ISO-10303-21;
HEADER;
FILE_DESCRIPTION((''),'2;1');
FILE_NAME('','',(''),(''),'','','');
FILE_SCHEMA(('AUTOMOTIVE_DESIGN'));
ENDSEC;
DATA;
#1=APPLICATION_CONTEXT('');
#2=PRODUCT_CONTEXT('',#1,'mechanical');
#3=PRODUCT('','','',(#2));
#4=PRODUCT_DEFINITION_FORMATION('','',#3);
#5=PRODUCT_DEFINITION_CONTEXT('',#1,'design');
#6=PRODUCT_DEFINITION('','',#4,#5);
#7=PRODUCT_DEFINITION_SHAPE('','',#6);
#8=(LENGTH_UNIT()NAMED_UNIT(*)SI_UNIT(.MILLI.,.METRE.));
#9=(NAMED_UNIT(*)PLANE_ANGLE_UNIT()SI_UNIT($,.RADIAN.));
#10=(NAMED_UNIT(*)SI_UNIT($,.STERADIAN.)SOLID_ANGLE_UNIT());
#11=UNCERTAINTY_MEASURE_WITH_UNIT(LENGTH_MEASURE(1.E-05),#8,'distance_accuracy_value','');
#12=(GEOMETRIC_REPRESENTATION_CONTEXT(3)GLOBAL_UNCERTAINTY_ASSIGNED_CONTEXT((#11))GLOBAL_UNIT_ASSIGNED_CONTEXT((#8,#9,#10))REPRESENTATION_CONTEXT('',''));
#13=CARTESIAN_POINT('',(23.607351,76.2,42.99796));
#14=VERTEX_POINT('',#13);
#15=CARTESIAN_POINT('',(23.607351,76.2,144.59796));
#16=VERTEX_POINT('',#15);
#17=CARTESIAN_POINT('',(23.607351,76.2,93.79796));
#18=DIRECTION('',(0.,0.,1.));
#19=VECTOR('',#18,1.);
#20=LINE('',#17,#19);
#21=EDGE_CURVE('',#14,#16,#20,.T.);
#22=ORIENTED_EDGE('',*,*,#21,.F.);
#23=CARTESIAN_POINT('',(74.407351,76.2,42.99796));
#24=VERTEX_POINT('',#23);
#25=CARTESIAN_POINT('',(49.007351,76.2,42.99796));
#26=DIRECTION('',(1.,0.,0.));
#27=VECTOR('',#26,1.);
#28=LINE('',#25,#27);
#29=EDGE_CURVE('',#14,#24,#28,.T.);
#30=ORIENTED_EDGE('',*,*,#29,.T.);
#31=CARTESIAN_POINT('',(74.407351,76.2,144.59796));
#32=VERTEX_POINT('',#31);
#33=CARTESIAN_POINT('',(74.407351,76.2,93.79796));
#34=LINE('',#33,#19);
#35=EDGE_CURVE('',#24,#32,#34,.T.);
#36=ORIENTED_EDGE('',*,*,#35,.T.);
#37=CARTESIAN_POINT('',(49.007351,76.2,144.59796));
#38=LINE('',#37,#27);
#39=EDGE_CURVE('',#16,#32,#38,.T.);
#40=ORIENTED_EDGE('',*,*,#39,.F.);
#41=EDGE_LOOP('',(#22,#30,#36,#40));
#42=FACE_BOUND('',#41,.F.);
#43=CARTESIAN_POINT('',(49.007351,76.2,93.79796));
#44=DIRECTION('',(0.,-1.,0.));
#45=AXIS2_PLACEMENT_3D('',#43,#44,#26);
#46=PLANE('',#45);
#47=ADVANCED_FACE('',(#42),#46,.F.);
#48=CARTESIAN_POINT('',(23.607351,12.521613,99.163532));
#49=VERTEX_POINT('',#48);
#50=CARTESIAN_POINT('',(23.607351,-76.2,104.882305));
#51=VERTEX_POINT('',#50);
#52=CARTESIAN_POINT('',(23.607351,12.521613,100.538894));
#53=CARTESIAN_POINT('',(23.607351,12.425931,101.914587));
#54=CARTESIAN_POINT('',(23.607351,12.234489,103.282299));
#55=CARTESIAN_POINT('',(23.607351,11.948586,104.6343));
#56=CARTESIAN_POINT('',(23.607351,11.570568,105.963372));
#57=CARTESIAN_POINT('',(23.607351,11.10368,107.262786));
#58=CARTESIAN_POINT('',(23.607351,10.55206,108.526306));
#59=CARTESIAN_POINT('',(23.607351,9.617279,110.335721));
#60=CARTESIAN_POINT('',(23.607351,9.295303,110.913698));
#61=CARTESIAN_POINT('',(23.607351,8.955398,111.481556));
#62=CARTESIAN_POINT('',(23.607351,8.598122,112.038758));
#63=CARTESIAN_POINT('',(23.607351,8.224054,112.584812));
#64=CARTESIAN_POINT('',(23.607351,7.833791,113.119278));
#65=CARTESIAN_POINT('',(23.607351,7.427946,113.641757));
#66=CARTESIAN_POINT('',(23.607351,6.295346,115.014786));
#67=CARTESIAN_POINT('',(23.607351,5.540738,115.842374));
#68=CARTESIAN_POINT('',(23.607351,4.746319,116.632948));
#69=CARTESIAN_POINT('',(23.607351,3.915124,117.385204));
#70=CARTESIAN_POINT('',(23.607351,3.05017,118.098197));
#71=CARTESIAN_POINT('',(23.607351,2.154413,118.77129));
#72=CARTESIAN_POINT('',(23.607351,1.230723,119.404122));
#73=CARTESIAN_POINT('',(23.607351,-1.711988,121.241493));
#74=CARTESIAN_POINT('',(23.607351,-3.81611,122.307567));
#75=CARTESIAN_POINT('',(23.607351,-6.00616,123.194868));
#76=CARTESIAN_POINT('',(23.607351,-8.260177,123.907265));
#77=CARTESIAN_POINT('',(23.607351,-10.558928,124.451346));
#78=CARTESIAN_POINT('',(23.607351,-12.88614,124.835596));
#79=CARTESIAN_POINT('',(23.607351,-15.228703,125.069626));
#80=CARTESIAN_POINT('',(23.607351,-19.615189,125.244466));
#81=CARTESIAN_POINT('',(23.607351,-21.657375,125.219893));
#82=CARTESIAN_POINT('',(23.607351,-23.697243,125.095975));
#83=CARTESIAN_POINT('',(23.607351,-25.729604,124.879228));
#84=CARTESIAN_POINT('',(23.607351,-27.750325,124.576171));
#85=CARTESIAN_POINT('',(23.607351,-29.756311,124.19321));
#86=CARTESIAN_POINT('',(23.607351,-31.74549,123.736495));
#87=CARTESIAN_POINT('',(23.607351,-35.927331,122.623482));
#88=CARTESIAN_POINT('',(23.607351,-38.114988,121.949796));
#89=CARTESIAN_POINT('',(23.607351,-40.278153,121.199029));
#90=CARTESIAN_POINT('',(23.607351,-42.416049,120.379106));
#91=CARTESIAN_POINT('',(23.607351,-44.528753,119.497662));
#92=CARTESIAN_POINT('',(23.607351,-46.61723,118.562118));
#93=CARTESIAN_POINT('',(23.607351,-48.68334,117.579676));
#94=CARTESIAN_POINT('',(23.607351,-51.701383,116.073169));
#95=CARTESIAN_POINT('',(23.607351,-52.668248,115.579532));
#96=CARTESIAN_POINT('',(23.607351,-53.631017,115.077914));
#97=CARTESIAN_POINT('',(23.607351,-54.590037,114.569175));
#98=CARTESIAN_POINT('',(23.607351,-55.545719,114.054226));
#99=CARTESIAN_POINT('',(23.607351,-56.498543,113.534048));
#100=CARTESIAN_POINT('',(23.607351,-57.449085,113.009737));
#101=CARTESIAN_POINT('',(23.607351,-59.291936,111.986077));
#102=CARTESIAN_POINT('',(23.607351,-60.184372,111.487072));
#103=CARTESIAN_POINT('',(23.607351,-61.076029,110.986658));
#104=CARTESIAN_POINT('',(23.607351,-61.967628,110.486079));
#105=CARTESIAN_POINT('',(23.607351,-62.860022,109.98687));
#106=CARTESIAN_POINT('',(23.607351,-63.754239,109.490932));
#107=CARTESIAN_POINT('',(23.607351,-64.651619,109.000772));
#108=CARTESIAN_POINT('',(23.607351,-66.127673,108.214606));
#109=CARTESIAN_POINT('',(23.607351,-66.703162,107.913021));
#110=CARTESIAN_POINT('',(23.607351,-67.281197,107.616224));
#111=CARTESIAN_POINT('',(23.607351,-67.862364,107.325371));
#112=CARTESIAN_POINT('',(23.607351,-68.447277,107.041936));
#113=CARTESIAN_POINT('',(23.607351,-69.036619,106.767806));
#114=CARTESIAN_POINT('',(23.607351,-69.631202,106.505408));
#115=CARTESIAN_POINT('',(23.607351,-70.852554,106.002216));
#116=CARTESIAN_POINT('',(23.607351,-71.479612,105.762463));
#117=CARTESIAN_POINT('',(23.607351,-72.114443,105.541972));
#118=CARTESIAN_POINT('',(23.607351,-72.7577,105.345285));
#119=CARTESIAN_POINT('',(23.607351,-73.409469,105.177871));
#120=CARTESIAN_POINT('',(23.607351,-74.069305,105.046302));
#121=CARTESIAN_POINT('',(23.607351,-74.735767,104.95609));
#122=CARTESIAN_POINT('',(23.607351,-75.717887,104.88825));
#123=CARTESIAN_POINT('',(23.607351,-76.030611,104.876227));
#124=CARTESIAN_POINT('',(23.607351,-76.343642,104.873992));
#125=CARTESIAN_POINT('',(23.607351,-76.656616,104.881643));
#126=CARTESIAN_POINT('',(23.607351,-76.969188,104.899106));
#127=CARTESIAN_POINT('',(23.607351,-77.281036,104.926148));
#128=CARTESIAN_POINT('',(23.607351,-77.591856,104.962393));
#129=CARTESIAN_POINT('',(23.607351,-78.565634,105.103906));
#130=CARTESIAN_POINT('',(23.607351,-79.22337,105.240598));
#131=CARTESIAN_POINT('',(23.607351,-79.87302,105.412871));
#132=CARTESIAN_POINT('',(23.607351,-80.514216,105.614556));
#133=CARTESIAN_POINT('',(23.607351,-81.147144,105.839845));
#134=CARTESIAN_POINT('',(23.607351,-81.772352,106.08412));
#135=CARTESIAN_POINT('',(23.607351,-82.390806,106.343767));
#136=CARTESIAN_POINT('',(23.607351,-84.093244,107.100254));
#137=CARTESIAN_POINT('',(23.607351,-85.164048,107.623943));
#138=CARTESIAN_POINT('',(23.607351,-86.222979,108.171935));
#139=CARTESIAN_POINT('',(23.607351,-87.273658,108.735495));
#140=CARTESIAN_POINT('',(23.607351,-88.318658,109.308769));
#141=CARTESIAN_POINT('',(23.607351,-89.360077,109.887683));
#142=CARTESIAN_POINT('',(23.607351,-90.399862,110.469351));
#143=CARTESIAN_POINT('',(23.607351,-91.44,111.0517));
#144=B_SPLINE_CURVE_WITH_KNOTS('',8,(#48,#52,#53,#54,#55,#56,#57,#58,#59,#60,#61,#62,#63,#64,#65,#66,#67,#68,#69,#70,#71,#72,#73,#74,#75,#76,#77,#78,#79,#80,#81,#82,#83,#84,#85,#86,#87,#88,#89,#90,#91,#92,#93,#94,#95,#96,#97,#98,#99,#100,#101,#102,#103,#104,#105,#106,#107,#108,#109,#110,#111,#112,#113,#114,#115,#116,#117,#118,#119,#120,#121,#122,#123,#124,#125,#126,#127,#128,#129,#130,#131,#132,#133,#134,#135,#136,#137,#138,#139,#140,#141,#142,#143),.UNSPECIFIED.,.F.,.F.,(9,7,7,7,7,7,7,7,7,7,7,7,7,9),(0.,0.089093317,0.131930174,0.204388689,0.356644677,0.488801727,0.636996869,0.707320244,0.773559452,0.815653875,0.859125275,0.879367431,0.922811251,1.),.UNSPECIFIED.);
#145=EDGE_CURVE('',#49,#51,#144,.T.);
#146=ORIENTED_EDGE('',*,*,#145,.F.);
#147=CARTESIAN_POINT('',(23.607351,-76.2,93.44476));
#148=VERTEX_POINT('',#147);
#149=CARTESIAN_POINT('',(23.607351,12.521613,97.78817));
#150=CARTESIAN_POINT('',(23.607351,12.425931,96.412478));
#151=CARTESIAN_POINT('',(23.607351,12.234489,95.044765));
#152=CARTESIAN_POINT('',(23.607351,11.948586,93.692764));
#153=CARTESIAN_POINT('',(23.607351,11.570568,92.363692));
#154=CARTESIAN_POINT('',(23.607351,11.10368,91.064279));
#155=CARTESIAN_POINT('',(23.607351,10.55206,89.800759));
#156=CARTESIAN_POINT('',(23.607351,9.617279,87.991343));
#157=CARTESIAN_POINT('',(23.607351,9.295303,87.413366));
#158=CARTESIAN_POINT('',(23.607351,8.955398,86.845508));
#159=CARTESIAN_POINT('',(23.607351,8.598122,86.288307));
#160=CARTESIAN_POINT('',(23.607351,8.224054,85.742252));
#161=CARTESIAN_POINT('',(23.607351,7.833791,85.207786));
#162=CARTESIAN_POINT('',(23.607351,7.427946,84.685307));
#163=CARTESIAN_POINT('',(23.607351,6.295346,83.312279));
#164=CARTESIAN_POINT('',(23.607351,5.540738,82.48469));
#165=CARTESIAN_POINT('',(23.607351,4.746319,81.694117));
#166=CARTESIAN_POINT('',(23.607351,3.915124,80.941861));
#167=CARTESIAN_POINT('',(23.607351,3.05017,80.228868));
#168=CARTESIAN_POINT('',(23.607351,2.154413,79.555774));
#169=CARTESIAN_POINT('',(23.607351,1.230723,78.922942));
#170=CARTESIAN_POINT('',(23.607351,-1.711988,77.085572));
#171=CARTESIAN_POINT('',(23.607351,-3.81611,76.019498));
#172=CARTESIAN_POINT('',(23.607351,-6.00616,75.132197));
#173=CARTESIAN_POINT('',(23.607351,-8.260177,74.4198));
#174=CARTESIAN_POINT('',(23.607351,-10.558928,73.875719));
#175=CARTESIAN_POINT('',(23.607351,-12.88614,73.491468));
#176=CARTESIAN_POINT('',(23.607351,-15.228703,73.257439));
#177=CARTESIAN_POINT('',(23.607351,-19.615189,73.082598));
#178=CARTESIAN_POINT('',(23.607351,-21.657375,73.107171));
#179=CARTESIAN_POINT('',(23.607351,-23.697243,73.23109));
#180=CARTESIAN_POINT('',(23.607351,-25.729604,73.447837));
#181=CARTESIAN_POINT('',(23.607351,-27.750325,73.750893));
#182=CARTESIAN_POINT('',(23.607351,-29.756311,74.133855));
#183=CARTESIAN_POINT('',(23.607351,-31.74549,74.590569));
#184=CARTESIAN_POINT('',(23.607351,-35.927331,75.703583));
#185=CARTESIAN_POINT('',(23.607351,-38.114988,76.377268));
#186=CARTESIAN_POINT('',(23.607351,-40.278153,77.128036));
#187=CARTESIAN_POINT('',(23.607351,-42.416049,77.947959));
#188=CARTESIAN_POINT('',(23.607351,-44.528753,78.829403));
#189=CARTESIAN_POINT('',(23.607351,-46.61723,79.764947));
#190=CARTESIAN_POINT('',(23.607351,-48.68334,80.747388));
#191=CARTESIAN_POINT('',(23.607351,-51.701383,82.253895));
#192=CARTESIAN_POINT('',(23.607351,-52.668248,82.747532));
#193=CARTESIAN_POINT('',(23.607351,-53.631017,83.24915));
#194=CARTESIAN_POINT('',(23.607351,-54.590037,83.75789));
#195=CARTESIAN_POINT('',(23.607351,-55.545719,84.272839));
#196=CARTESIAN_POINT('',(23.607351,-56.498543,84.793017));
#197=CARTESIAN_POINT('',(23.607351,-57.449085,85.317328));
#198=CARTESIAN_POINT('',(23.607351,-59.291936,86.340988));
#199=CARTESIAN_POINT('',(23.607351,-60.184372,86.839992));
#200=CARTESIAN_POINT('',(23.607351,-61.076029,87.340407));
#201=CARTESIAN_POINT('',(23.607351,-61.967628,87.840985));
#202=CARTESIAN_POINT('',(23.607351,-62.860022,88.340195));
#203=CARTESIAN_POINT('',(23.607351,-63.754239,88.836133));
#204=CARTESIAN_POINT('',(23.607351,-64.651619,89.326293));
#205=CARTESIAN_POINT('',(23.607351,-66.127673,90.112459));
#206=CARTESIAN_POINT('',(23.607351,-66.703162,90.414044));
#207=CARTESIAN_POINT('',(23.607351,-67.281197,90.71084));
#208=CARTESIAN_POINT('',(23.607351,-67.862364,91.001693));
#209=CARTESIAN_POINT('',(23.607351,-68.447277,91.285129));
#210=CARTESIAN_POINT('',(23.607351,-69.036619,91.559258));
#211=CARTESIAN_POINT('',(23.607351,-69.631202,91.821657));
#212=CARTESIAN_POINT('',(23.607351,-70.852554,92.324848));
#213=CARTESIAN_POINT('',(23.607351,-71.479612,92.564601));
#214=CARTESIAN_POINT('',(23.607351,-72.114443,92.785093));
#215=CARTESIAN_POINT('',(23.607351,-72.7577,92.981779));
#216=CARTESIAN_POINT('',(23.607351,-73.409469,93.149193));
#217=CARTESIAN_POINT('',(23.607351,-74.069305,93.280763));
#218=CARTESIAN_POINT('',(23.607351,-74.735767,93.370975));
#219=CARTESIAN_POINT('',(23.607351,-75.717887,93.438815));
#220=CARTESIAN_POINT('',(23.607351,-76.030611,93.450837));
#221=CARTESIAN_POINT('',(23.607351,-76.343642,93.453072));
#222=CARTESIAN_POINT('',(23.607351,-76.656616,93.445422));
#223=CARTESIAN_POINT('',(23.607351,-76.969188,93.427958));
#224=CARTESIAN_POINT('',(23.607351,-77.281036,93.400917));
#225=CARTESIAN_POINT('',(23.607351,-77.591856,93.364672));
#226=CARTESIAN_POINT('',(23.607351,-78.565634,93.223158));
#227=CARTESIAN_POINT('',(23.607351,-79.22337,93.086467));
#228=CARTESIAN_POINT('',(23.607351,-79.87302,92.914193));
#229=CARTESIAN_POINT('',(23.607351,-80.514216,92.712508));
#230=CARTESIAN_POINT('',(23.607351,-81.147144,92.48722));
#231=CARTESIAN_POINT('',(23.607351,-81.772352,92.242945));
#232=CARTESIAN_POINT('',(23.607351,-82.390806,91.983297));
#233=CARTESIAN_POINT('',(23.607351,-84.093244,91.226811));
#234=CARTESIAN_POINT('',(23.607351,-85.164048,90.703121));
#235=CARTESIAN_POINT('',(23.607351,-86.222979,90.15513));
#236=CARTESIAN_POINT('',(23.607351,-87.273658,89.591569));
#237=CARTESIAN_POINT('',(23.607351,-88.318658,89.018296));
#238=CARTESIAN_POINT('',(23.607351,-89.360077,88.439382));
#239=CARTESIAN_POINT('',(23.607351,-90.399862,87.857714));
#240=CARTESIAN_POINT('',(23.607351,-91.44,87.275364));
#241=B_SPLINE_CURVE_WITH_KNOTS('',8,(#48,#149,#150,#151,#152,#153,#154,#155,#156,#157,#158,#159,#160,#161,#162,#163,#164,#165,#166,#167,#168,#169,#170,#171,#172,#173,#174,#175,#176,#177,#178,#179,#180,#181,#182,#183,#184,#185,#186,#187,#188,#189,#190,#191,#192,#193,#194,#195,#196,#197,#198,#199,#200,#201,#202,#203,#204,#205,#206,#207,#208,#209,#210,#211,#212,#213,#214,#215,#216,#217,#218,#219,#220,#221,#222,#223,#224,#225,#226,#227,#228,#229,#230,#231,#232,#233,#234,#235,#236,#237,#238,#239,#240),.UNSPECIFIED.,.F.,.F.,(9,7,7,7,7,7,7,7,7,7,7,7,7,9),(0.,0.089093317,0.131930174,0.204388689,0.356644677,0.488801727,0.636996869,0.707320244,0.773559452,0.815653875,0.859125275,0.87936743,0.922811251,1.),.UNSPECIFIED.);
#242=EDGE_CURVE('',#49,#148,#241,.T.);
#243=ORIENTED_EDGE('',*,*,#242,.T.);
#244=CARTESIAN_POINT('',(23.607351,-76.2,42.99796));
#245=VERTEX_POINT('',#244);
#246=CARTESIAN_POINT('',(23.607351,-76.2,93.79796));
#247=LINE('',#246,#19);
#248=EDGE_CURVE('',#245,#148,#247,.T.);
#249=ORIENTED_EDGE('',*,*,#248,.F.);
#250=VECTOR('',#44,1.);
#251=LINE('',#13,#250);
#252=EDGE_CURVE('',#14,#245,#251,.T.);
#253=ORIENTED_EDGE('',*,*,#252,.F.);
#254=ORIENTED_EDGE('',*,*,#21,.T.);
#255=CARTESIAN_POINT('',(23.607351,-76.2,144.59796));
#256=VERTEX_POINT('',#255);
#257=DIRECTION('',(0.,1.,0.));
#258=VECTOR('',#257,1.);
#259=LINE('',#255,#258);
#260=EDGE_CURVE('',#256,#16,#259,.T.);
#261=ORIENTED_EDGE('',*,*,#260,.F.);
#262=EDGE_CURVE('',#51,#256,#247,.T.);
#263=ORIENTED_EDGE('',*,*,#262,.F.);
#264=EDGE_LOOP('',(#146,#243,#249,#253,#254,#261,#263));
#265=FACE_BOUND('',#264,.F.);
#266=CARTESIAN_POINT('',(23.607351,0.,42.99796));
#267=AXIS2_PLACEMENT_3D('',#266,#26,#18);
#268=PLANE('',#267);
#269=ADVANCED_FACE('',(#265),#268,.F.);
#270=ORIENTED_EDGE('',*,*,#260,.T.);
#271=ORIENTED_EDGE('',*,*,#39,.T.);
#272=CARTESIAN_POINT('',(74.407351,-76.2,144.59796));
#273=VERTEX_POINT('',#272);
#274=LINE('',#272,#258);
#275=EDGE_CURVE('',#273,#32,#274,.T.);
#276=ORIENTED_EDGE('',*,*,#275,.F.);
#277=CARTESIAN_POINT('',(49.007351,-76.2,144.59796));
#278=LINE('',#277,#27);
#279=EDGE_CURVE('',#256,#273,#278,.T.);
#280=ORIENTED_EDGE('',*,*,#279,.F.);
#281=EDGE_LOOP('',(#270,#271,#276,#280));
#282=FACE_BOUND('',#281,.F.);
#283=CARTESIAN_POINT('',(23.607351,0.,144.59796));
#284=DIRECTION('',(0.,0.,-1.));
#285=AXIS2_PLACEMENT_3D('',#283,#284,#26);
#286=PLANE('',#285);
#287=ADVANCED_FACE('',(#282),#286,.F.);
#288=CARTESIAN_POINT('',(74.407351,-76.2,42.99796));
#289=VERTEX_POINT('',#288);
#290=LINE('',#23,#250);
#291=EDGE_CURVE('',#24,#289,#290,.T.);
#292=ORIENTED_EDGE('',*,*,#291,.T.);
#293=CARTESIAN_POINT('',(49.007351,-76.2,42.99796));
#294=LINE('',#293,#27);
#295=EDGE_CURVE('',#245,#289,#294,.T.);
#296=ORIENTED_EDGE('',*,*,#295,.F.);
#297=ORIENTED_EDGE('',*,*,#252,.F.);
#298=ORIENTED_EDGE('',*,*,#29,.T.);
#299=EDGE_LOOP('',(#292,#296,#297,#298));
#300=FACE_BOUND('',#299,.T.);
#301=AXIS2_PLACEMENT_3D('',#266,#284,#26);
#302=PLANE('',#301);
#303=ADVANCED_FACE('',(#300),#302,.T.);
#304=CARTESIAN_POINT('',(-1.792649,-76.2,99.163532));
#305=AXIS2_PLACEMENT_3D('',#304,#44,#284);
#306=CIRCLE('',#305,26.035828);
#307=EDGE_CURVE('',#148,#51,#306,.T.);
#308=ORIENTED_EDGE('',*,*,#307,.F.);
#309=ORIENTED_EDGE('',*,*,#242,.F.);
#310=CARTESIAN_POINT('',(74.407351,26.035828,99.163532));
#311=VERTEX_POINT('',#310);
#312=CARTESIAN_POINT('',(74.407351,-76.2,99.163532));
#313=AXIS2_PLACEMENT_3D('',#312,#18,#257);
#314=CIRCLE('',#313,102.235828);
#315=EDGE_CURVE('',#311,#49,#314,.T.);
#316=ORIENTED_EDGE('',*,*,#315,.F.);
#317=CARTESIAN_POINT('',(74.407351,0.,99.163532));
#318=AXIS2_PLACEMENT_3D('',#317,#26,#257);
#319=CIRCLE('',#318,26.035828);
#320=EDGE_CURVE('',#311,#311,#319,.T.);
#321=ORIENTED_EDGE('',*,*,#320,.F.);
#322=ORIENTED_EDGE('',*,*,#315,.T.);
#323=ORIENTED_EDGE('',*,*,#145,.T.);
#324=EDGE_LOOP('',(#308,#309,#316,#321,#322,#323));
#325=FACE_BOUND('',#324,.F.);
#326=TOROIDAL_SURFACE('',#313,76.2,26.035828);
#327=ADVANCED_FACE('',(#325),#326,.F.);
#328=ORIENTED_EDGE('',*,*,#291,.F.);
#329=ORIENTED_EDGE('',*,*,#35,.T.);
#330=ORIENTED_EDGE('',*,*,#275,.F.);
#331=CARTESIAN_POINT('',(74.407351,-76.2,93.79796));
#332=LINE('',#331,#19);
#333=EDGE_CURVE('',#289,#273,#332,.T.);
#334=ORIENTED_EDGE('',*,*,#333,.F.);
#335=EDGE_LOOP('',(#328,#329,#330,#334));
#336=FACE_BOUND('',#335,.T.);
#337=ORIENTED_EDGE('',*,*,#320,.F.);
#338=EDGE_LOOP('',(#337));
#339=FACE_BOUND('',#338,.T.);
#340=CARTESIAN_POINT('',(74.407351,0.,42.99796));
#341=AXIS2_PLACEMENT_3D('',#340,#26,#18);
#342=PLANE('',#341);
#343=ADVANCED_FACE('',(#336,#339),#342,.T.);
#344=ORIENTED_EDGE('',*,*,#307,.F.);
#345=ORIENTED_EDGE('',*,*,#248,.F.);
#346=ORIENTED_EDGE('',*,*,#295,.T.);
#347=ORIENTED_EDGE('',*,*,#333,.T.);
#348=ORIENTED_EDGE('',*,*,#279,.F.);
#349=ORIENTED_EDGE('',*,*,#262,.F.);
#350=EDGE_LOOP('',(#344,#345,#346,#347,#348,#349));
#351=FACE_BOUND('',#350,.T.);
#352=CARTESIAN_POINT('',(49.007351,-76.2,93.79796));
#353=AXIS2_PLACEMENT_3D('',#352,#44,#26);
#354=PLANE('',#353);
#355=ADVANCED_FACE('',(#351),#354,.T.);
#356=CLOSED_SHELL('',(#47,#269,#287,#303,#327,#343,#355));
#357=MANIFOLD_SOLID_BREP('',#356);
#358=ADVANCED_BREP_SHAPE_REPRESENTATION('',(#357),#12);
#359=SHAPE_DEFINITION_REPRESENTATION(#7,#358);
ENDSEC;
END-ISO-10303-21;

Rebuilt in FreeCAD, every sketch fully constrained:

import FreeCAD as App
import Part
import Sketcher
Q = App.Units.Quantity

doc = App.newDocument("Part")
body = doc.addObject("PartDesign::Body", "Body")

# Sketch on XZ plane
sketch1 = body.newObject("Sketcher::SketchObject", "Sketch")
sketch1.AttachmentSupport = (doc.getObject("XZ_Plane"), [""])
sketch1.MapMode = "FlatFace"
sketch1.addGeometry(Part.LineSegment(App.Vector(23.607351, 144.59796, 0), App.Vector(23.607351, 42.99796, 0)), False)
sketch1.addGeometry(Part.LineSegment(App.Vector(23.607351, 42.99796, 0), App.Vector(74.407351, 42.99796, 0)), False)
sketch1.addGeometry(Part.LineSegment(App.Vector(74.407351, 42.99796, 0), App.Vector(74.407351, 144.59796, 0)), False)
sketch1.addGeometry(Part.LineSegment(App.Vector(74.407351, 144.59796, 0), App.Vector(23.607351, 144.59796, 0)), False)
sketch1.addConstraint(Sketcher.Constraint("Coincident", 0, 2, 1, 1))
sketch1.addConstraint(Sketcher.Constraint("Coincident", 1, 2, 2, 1))
sketch1.addConstraint(Sketcher.Constraint("Coincident", 2, 2, 3, 1))
sketch1.addConstraint(Sketcher.Constraint("Coincident", 3, 2, 0, 1))
sketch1.addConstraint(Sketcher.Constraint("Vertical", 0))
sketch1.addConstraint(Sketcher.Constraint("Horizontal", 1))
sketch1.addConstraint(Sketcher.Constraint("Vertical", 2))
sketch1.addConstraint(Sketcher.Constraint("Horizontal", 3))
sketch1.addConstraint(Sketcher.Constraint("DistanceX", 1, 1, 1, 2, Q("2 in")))
sketch1.addConstraint(Sketcher.Constraint("DistanceY", 0, 2, 0, 1, Q("4 in")))
sketch1.addConstraint(Sketcher.Constraint("DistanceX", -1, 1, 0, 2, 23.607351))
sketch1.addConstraint(Sketcher.Constraint("DistanceY", -1, 1, 0, 2, 42.99796))
pad1 = body.newObject("PartDesign::Pad", "Pad")
pad1.Profile = sketch1
pad1.Length = Q("6 in")
pad1.Midplane = True

# Sketch on YZ plane
sketch2 = body.newObject("Sketcher::SketchObject", "Sketch001")
sketch2.AttachmentSupport = (doc.getObject("YZ_Plane"), [""])
sketch2.MapMode = "FlatFace"
sketch2.AttachmentOffset = App.Placement(App.Vector(0, 0, 74.407351), App.Rotation())
sketch2.addGeometry(Part.Circle(App.Vector(0, 99.163532, 0), App.Vector(0, 0, 1), 26.035828), False)
sketch2.addGeometry(Part.LineSegment(App.Vector(-76.2, 99.163532, 0), App.Vector(-76.2, 109.163532, 0)), True)  # axis
sketch2.addConstraint(Sketcher.Constraint("Vertical", 1))
sketch2.addConstraint(Sketcher.Constraint("PointOnObject", 0, 3, -2))
sketch2.addConstraint(Sketcher.Constraint("Horizontal", 0, 3, 1, 1))
sketch2.addConstraint(Sketcher.Constraint("DistanceX", 1, 1, -1, 1, Q("3 in")))
sketch2.addConstraint(Sketcher.Constraint("Diameter", 0, 52.071657))
sketch2.addConstraint(Sketcher.Constraint("DistanceY", 1, 1, 1, 2, 10.0))
sketch2.addConstraint(Sketcher.Constraint("DistanceY", -1, 1, 0, 3, 99.163532))
groove = body.newObject("PartDesign::Groove", "Groove")
groove.Profile = sketch2
groove.ReferenceAxis = (sketch2, ["Axis0"])
groove.Angle = 360

doc.recompute()
